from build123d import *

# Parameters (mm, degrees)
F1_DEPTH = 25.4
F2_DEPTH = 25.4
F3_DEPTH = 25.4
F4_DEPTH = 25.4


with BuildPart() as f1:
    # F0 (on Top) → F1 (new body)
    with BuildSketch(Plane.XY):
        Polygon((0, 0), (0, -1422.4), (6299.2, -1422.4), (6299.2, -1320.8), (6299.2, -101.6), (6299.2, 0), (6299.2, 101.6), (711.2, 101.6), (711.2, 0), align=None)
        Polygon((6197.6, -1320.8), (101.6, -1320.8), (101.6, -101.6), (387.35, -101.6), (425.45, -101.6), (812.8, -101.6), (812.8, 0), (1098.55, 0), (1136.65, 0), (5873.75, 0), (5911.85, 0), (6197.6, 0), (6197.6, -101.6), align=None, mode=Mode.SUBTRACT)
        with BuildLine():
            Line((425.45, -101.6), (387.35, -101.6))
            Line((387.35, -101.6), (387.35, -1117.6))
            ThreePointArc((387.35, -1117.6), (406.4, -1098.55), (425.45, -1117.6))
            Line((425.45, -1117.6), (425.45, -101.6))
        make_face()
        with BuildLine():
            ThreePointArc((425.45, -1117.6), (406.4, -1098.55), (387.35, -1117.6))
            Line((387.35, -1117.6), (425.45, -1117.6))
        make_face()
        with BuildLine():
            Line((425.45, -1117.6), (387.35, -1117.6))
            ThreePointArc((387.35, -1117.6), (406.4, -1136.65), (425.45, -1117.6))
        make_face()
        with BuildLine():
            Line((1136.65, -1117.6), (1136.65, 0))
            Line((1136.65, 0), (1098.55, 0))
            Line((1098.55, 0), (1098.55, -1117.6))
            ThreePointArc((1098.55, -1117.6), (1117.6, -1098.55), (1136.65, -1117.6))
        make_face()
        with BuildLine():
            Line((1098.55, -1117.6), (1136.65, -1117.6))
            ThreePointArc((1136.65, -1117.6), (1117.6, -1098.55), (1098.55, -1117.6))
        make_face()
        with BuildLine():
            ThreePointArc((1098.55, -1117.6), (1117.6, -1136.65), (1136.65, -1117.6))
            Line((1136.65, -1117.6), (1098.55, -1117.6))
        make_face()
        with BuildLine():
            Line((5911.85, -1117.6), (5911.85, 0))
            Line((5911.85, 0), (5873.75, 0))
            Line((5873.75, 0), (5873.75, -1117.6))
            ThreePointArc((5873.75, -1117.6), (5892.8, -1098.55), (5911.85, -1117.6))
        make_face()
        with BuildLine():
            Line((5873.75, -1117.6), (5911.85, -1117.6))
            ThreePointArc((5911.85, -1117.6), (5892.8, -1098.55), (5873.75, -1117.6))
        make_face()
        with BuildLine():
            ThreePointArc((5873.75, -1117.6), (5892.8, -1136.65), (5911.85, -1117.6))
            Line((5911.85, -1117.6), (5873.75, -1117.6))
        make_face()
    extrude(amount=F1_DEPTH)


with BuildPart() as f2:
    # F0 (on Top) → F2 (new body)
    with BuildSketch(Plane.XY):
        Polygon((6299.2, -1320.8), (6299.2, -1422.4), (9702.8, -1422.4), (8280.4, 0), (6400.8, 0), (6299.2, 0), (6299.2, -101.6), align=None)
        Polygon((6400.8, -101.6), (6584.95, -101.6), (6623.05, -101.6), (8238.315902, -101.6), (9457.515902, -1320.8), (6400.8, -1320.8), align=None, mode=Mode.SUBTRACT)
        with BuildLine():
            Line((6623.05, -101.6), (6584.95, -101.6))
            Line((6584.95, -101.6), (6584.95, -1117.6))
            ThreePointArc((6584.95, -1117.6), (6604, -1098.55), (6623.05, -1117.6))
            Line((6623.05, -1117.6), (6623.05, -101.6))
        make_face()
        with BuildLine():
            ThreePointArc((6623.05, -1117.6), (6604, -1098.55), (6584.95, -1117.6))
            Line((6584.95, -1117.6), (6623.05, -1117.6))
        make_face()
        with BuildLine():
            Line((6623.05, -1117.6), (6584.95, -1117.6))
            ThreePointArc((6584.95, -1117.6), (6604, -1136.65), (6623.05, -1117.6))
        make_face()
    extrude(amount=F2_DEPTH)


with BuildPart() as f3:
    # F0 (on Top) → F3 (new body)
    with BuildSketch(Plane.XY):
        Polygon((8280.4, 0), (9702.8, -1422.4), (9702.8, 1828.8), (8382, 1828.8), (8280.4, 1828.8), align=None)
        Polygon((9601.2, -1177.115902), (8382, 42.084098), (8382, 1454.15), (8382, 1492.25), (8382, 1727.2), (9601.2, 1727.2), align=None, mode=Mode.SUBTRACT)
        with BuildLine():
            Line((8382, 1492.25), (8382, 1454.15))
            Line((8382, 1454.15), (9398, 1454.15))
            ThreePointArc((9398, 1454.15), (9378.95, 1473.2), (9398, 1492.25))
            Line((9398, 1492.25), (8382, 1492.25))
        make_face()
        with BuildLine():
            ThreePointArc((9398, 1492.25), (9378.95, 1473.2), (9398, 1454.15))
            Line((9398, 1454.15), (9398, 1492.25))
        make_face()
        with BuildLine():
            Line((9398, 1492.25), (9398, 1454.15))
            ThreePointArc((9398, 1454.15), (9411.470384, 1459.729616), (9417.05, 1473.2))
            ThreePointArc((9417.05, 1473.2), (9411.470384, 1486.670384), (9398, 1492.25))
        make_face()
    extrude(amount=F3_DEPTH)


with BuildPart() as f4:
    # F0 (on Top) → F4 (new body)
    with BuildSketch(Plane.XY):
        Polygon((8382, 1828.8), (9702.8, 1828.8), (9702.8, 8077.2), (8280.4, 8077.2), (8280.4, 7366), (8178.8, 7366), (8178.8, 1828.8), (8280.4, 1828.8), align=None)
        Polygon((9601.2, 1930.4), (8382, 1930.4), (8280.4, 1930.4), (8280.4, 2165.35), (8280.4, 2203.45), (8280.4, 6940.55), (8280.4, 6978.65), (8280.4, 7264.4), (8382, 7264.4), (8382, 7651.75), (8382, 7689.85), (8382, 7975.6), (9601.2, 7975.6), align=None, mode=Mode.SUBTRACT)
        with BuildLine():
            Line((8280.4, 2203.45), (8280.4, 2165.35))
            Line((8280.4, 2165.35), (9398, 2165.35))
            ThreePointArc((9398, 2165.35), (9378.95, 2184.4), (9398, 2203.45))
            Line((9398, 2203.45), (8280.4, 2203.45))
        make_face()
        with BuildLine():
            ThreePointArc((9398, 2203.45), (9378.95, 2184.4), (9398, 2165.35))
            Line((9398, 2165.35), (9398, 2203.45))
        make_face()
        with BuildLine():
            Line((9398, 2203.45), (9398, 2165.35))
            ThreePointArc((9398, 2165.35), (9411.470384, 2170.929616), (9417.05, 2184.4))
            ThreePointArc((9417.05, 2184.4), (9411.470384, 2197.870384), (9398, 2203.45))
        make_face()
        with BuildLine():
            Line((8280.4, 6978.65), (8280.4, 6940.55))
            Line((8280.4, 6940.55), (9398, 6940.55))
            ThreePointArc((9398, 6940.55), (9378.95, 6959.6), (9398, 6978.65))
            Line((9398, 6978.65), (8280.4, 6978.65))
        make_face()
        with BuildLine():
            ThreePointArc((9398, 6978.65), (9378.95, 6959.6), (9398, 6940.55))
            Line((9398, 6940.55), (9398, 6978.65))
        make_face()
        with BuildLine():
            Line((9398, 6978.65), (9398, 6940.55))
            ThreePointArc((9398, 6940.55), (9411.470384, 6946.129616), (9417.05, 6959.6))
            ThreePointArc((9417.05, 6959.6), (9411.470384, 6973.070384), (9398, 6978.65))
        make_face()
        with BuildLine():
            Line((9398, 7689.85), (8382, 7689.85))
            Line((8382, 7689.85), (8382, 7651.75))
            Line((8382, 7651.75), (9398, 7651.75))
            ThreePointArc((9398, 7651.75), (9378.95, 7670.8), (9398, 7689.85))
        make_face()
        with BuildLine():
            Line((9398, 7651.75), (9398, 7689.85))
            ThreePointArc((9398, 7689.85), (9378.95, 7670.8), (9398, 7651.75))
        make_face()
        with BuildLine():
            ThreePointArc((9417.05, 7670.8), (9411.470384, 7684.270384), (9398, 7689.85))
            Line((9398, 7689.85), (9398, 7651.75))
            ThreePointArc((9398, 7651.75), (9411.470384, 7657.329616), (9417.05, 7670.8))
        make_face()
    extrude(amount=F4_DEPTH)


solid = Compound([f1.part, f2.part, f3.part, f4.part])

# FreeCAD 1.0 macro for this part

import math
import FreeCAD as App
import Part
import Sketcher
from FreeCAD import Vector
Q = App.Units.Quantity

doc = App.newDocument("Part")
params = doc.addObject("Spreadsheet::Sheet", "Params")
for row, (alias, value) in enumerate([
    ("sketch1_width", "248 in"),
    ("sketch1_width2", "220 in"),
    ("sketch1_width3", "240 in"),
    ("sketch1_height", "56 in"),
    ("sketch1_height2", "60 in"),
    ("pad1_length", "1 in"),
    ("sketch2_width", "134 in"),
    ("sketch2_width2", "78 in"),
    ("sketch2_height", "56 in"),
    ("sketch2_height2", "48 in"),
    ("sketch2_height3", "40 in"),
    ("pad2_length", "1 in"),
    ("sketch3_width", "56 in"),
    ("sketch3_width2", "40 in"),
    ("sketch3_width3", "48 in"),
    ("sketch3_height", "128 in"),
    ("sketch3_height2", "72 in"),
    ("pad3_length", "1 in"),
    ("sketch4_width", "56 in"),
    ("sketch4_width2", "4 in"),
    ("sketch4_width3", "52 in"),
    ("sketch4_width4", "44 in"),
    ("sketch4_height", "246 in"),
    ("pad4_length", "1 in"),
], start=1):
    params.set(f"A{row}", alias)
    params.set(f"B{row}", "=" + value)
    params.setAlias(f"B{row}", alias)

body = doc.addObject("PartDesign::Body", "Body")

sketch1 = body.newObject("Sketcher::SketchObject", "Sketch")
sketch1.AttachmentSupport = (doc.getObject("XY_Plane"), [""])
sketch1.MapMode = "FlatFace"
sketch1.addGeometry(Part.LineSegment(Vector(0, 0, 0), Vector(0, -1422, 0)), False)
sketch1.addGeometry(Part.LineSegment(Vector(0, -1422, 0), Vector(6299, -1422, 0)), False)
sketch1.addGeometry(Part.LineSegment(Vector(6299, -1422, 0), Vector(6299, 102, 0)), False)
sketch1.addGeometry(Part.LineSegment(Vector(6299, 102, 0), Vector(711, 102, 0)), False)
sketch1.addGeometry(Part.LineSegment(Vector(711, 102, 0), Vector(711, 0, 0)), False)
sketch1.addGeometry(Part.LineSegment(Vector(711, 0, 0), Vector(0, 0, 0)), False)
sketch1.addGeometry(Part.LineSegment(Vector(6198, 0, 0), Vector(6198, -1321, 0)), False)
sketch1.addGeometry(Part.LineSegment(Vector(6198, -1321, 0), Vector(102, -1321, 0)), False)
sketch1.addGeometry(Part.LineSegment(Vector(102, -1321, 0), Vector(102, -102, 0)), False)
sketch1.addGeometry(Part.LineSegment(Vector(102, -102, 0), Vector(387, -102, 0)), False)
sketch1.addGeometry(Part.LineSegment(Vector(387, -102, 0), Vector(387, -1118, 0)), False)
sketch1.addGeometry(Part.ArcOfCircle(Part.Circle(Vector(406, -1118, 0), Vector(0, 0, 1), 19), math.radians(180), math.radians(360)), False)
sketch1.addGeometry(Part.LineSegment(Vector(425, -1118, 0), Vector(425, -102, 0)), False)
sketch1.addGeometry(Part.LineSegment(Vector(425, -102, 0), Vector(813, -102, 0)), False)
sketch1.addGeometry(Part.LineSegment(Vector(813, -102, 0), Vector(813, 0, 0)), False)
sketch1.addGeometry(Part.LineSegment(Vector(813, 0, 0), Vector(1099, 0, 0)), False)
sketch1.addGeometry(Part.LineSegment(Vector(1099, 0, 0), Vector(1099, -1118, 0)), False)
sketch1.addGeometry(Part.ArcOfCircle(Part.Circle(Vector(1118, -1118, 0), Vector(0, 0, 1), 19), math.radians(180), math.radians(360)), False)
sketch1.addGeometry(Part.LineSegment(Vector(1137, -1118, 0), Vector(1137, 0, 0)), False)
sketch1.addGeometry(Part.LineSegment(Vector(1137, 0, 0), Vector(5874, 0, 0)), False)
sketch1.addGeometry(Part.LineSegment(Vector(5874, 0, 0), Vector(5874, -1118, 0)), False)
sketch1.addGeometry(Part.ArcOfCircle(Part.Circle(Vector(5893, -1118, 0), Vector(0, 0, 1), 19), math.radians(180), math.radians(360)), False)
sketch1.addGeometry(Part.LineSegment(Vector(5912, -1118, 0), Vector(5912, 0, 0)), False)
sketch1.addGeometry(Part.LineSegment(Vector(5912, 0, 0), Vector(6198, 0, 0)), False)
sketch1.addConstraint(Sketcher.Constraint("Coincident", 0, 2, 1, 1))
sketch1.addConstraint(Sketcher.Constraint("Coincident", 1, 2, 2, 1))
sketch1.addConstraint(Sketcher.Constraint("Coincident", 2, 2, 3, 1))
sketch1.addConstraint(Sketcher.Constraint("Coincident", 3, 2, 4, 1))
sketch1.addConstraint(Sketcher.Constraint("Coincident", 4, 2, 5, 1))
sketch1.addConstraint(Sketcher.Constraint("Coincident", 5, 2, 0, 1))
sketch1.addConstraint(Sketcher.Constraint("Coincident", 6, 2, 7, 1))
sketch1.addConstraint(Sketcher.Constraint("Coincident", 7, 2, 8, 1))
sketch1.addConstraint(Sketcher.Constraint("Coincident", 8, 2, 9, 1))
sketch1.addConstraint(Sketcher.Constraint("Coincident", 9, 2, 10, 1))
sketch1.addConstraint(Sketcher.Constraint("Tangent", 10, 2, 11, 1))
sketch1.addConstraint(Sketcher.Constraint("Tangent", 11, 2, 12, 1))
sketch1.addConstraint(Sketcher.Constraint("Coincident", 12, 2, 13, 1))
sketch1.addConstraint(Sketcher.Constraint("Coincident", 13, 2, 14, 1))
sketch1.addConstraint(Sketcher.Constraint("Coincident", 14, 2, 15, 1))
sketch1.addConstraint(Sketcher.Constraint("Coincident", 15, 2, 16, 1))
sketch1.addConstraint(Sketcher.Constraint("Tangent", 16, 2, 17, 1))
sketch1.addConstraint(Sketcher.Constraint("Tangent", 17, 2, 18, 1))
sketch1.addConstraint(Sketcher.Constraint("Coincident", 18, 2, 19, 1))
sketch1.addConstraint(Sketcher.Constraint("Coincident", 19, 2, 20, 1))
sketch1.addConstraint(Sketcher.Constraint("Tangent", 20, 2, 21, 1))
sketch1.addConstraint(Sketcher.Constraint("Tangent", 21, 2, 22, 1))
sketch1.addConstraint(Sketcher.Constraint("Coincident", 22, 2, 23, 1))
sketch1.addConstraint(Sketcher.Constraint("Coincident", 23, 2, 6, 1))
sketch1.addConstraint(Sketcher.Constraint("Vertical", 0))
sketch1.addConstraint(Sketcher.Constraint("Horizontal", 1))
sketch1.addConstraint(Sketcher.Constraint("Vertical", 2))
sketch1.addConstraint(Sketcher.Constraint("Horizontal", 3))
sketch1.addConstraint(Sketcher.Constraint("Vertical", 4))
sketch1.addConstraint(Sketcher.Constraint("Horizontal", 5))
sketch1.addConstraint(Sketcher.Constraint("Vertical", 6))
sketch1.addConstraint(Sketcher.Constraint("Horizontal", 7))
sketch1.addConstraint(Sketcher.Constraint("Vertical", 8))
sketch1.addConstraint(Sketcher.Constraint("Horizontal", 9))
sketch1.addConstraint(Sketcher.Constraint("Vertical", 10))
sketch1.addConstraint(Sketcher.Constraint("Vertical", 12))
sketch1.addConstraint(Sketcher.Constraint("Horizontal", 13))
sketch1.addConstraint(Sketcher.Constraint("Vertical", 14))
sketch1.addConstraint(Sketcher.Constraint("Horizontal", 15))
sketch1.addConstraint(Sketcher.Constraint("Vertical", 16))
sketch1.addConstraint(Sketcher.Constraint("Vertical", 18))
sketch1.addConstraint(Sketcher.Constraint("Horizontal", 19))
sketch1.addConstraint(Sketcher.Constraint("Vertical", 20))
sketch1.addConstraint(Sketcher.Constraint("Vertical", 22))
sketch1.addConstraint(Sketcher.Constraint("Horizontal", 23))
sketch1.addConstraint(Sketcher.Constraint("Coincident", 5, 2, -1, 1))
sketch1.addConstraint(Sketcher.Constraint("Equal", 11, 17))
sketch1.addConstraint(Sketcher.Constraint("Equal", 17, 21))
sketch1.addConstraint(Sketcher.Constraint("PointOnObject", 14, 2, -1))
sketch1.addConstraint(Sketcher.Constraint("PointOnObject", 18, 2, -1))
sketch1.addConstraint(Sketcher.Constraint("PointOnObject", 22, 2, -1))
sketch1.addConstraint(Sketcher.Constraint("Horizontal", 11, 3, 17, 3))
sketch1.addConstraint(Sketcher.Constraint("Horizontal", 17, 3, 21, 3))
sketch1.addConstraint(Sketcher.Constraint("Horizontal", 9, 2, 12, 2))
sketch1.addConstraint(Sketcher.Constraint("Equal", 9, 15))
sketch1.addConstraint(Sketcher.Constraint("Equal", 15, 23))
sketch1.addConstraint(Sketcher.Constraint("Equal", 4, 14))
sketch1.addConstraint(Sketcher.Constraint("DistanceX", 1, 1, 1, 2, Q("248 in")))
sketch1.addConstraint(Sketcher.Constraint("DistanceX", 3, 2, 3, 1, Q("220 in")))
sketch1.addConstraint(Sketcher.Constraint("DistanceX", 7, 2, 7, 1, Q("240 in")))
sketch1.addConstraint(Sketcher.Constraint("DistanceY", 0, 2, 0, 1, Q("56 in")))
sketch1.addConstraint(Sketcher.Constraint("DistanceY", 2, 1, 2, 2, Q("60 in")))
sketch1.addConstraint(Sketcher.Constraint("DistanceY", 6, 2, 6, 1, Q("52 in")))
sketch1.addConstraint(Sketcher.Constraint("DistanceY", 10, 2, 10, 1, Q("40 in")))
sketch1.addConstraint(Sketcher.Constraint("Radius", 11, Q("0.75 in")))
sketch1.addConstraint(Sketcher.Constraint("DistanceX", 19, 1, 19, 2, Q("186.5 in")))
sketch1.addConstraint(Sketcher.Constraint("DistanceX", -1, 1, 11, 3, Q("16 in")))
sketch1.addConstraint(Sketcher.Constraint("DistanceX", -1, 1, 17, 3, Q("44 in")))
sketch1.setExpression("Constraints[57]", "Params.sketch1_width")
sketch1.setExpression("Constraints[58]", "Params.sketch1_width2")
sketch1.setExpression("Constraints[59]", "Params.sketch1_width3")
sketch1.setExpression("Constraints[60]", "Params.sketch1_height")
sketch1.setExpression("Constraints[61]", "Params.sketch1_height2")
pad1 = body.newObject("PartDesign::Pad", "Pad")
pad1.Profile = sketch1
pad1.setExpression("Length", "Params.pad1_length")
body2 = doc.addObject("PartDesign::Body", "Body001")

sketch2 = body2.newObject("Sketcher::SketchObject", "Sketch001")
sketch2.AttachmentSupport = (doc.getObject("XY_Plane001"), [""])
sketch2.MapMode = "FlatFace"
sketch2.addGeometry(Part.LineSegment(Vector(6299, -1422, 0), Vector(9703, -1422, 0)), False)
sketch2.addGeometry(Part.LineSegment(Vector(9703, -1422, 0), Vector(8280, 0, 0)), False)
sketch2.addGeometry(Part.LineSegment(Vector(8280, 0, 0), Vector(6299, 0, 0)), False)
sketch2.addGeometry(Part.LineSegment(Vector(6299, 0, 0), Vector(6299, -1422, 0)), False)
sketch2.addGeometry(Part.LineSegment(Vector(6401, -1321, 0), Vector(6401, -102, 0)), False)
sketch2.addGeometry(Part.LineSegment(Vector(6401, -102, 0), Vector(6585, -102, 0)), False)
sketch2.addGeometry(Part.LineSegment(Vector(6585, -102, 0), Vector(6585, -1118, 0)), False)
sketch2.addGeometry(Part.ArcOfCircle(Part.Circle(Vector(6604, -1118, 0), Vector(0, 0, 1), 19), math.radians(180), math.radians(360)), False)
sketch2.addGeometry(Part.LineSegment(Vector(6623, -1118, 0), Vector(6623, -102, 0)), False)
sketch2.addGeometry(Part.LineSegment(Vector(6623, -102, 0), Vector(8238, -102, 0)), False)
sketch2.addGeometry(Part.LineSegment(Vector(8238, -102, 0), Vector(9458, -1321, 0)), False)
sketch2.addGeometry(Part.LineSegment(Vector(9458, -1321, 0), Vector(6401, -1321, 0)), False)
sketch2.addConstraint(Sketcher.Constraint("Coincident", 0, 2, 1, 1))
sketch2.addConstraint(Sketcher.Constraint("Coincident", 1, 2, 2, 1))
sketch2.addConstraint(Sketcher.Constraint("Coincident", 2, 2, 3, 1))
sketch2.addConstraint(Sketcher.Constraint("Coincident", 3, 2, 0, 1))
sketch2.addConstraint(Sketcher.Constraint("Coincident", 4, 2, 5, 1))
sketch2.addConstraint(Sketcher.Constraint("Coincident", 5, 2, 6, 1))
sketch2.addConstraint(Sketcher.Constraint("Tangent", 6, 2, 7, 1))
sketch2.addConstraint(Sketcher.Constraint("Tangent", 7, 2, 8, 1))
sketch2.addConstraint(Sketcher.Constraint("Coincident", 8, 2, 9, 1))
sketch2.addConstraint(Sketcher.Constraint("Coincident", 9, 2, 10, 1))
sketch2.addConstraint(Sketcher.Constraint("Coincident", 10, 2, 11, 1))
sketch2.addConstraint(Sketcher.Constraint("Coincident", 11, 2, 4, 1))
sketch2.addConstraint(Sketcher.Constraint("Horizontal", 0))
sketch2.addConstraint(Sketcher.Constraint("Horizontal", 2))
sketch2.addConstraint(Sketcher.Constraint("Vertical", 3))
sketch2.addConstraint(Sketcher.Constraint("Vertical", 4))
sketch2.addConstraint(Sketcher.Constraint("Horizontal", 5))
sketch2.addConstraint(Sketcher.Constraint("Vertical", 6))
sketch2.addConstraint(Sketcher.Constraint("Vertical", 8))
sketch2.addConstraint(Sketcher.Constraint("Horizontal", 9))
sketch2.addConstraint(Sketcher.Constraint("Horizontal", 11))
sketch2.addConstraint(Sketcher.Constraint("PointOnObject", 1, 2, -1))
sketch2.addConstraint(Sketcher.Constraint("Parallel", 1, 10))
sketch2.addConstraint(Sketcher.Constraint("Horizontal", 5, 2, 8, 2))
sketch2.addConstraint(Sketcher.Constraint("DistanceX", 0, 1, 0, 2, Q("134 in")))
sketch2.addConstraint(Sketcher.Constraint("DistanceX", 2, 2, 2, 1, Q("78 in")))
sketch2.addConstraint(Sketcher.Constraint("DistanceY", 3, 2, 3, 1, Q("56 in")))
sketch2.addConstraint(Sketcher.Constraint("DistanceY", 4, 1, 4, 2, Q("48 in")))
sketch2.addConstraint(Sketcher.Constraint("DistanceY", 6, 2, 6, 1, Q("40 in")))
sketch2.addConstraint(Sketcher.Constraint("Radius", 7, Q("0.75 in")))
sketch2.addConstraint(Sketcher.Constraint("DistanceX", -1, 1, 7, 3, Q("260 in")))
sketch2.addConstraint(Sketcher.Constraint("DistanceY", 7, 3, -1, 1, Q("44 in")))
sketch2.addConstraint(Sketcher.Constraint("DistanceX", -1, 1, 0, 2, Q("382 in")))
sketch2.addConstraint(Sketcher.Constraint("DistanceX", -1, 1, 4, 2, Q("252 in")))
sketch2.addConstraint(Sketcher.Constraint("DistanceX", 9, 1, 9, 2, 1615.265902))
sketch2.setExpression("Constraints[24]", "Params.sketch2_width")
sketch2.setExpression("Constraints[25]", "Params.sketch2_width2")
sketch2.setExpression("Constraints[26]", "Params.sketch2_height")
sketch2.setExpression("Constraints[27]", "Params.sketch2_height2")
sketch2.setExpression("Constraints[28]", "Params.sketch2_height3")
pad2 = body2.newObject("PartDesign::Pad", "Pad001")
pad2.Profile = sketch2
pad2.setExpression("Length", "Params.pad2_length")
body3 = doc.addObject("PartDesign::Body", "Body002")

sketch3 = body3.newObject("Sketcher::SketchObject", "Sketch002")
sketch3.AttachmentSupport = (doc.getObject("XY_Plane002"), [""])
sketch3.MapMode = "FlatFace"
sketch3.addGeometry(Part.LineSegment(Vector(8280, 0, 0), Vector(9703, -1422, 0)), False)
sketch3.addGeometry(Part.LineSegment(Vector(9703, -1422, 0), Vector(9703, 1829, 0)), False)
sketch3.addGeometry(Part.LineSegment(Vector(9703, 1829, 0), Vector(8280, 1829, 0)), False)
sketch3.addGeometry(Part.LineSegment(Vector(8280, 1829, 0), Vector(8280, 0, 0)), False)
sketch3.addGeometry(Part.LineSegment(Vector(9601, 1727, 0), Vector(9601, -1177, 0)), False)
sketch3.addGeometry(Part.LineSegment(Vector(9601, -1177, 0), Vector(8382, 42, 0)), False)
sketch3.addGeometry(Part.LineSegment(Vector(8382, 42, 0), Vector(8382, 1454, 0)), False)
sketch3.addGeometry(Part.LineSegment(Vector(8382, 1454, 0), Vector(9398, 1454, 0)), False)
sketch3.addGeometry(Part.ArcOfCircle(Part.Circle(Vector(9398, 1473, 0), Vector(0, 0, 1), 19), math.radians(-90), math.radians(0)), False)
sketch3.addGeometry(Part.ArcOfCircle(Part.Circle(Vector(9398, 1473, 0), Vector(0, 0, 1), 19), math.radians(0), math.radians(90)), False)
sketch3.addGeometry(Part.LineSegment(Vector(9398, 1492, 0), Vector(8382, 1492, 0)), False)
sketch3.addGeometry(Part.LineSegment(Vector(8382, 1492, 0), Vector(8382, 1727, 0)), False)
sketch3.addGeometry(Part.LineSegment(Vector(8382, 1727, 0), Vector(9601, 1727, 0)), False)
sketch3.addConstraint(Sketcher.Constraint("Coincident", 0, 2, 1, 1))
sketch3.addConstraint(Sketcher.Constraint("Coincident", 1, 2, 2, 1))
sketch3.addConstraint(Sketcher.Constraint("Coincident", 2, 2, 3, 1))
sketch3.addConstraint(Sketcher.Constraint("Coincident", 3, 2, 0, 1))
sketch3.addConstraint(Sketcher.Constraint("Coincident", 4, 2, 5, 1))
sketch3.addConstraint(Sketcher.Constraint("Coincident", 5, 2, 6, 1))
sketch3.addConstraint(Sketcher.Constraint("Coincident", 6, 2, 7, 1))
sketch3.addConstraint(Sketcher.Constraint("Tangent", 7, 2, 8, 1))
sketch3.addConstraint(Sketcher.Constraint("Tangent", 8, 2, 9, 1))
sketch3.addConstraint(Sketcher.Constraint("Tangent", 9, 2, 10, 1))
sketch3.addConstraint(Sketcher.Constraint("Coincident", 10, 2, 11, 1))
sketch3.addConstraint(Sketcher.Constraint("Coincident", 11, 2, 12, 1))
sketch3.addConstraint(Sketcher.Constraint("Coincident", 12, 2, 4, 1))
sketch3.addConstraint(Sketcher.Constraint("Vertical", 1))
sketch3.addConstraint(Sketcher.Constraint("Horizontal", 2))
sketch3.addConstraint(Sketcher.Constraint("Vertical", 3))
sketch3.addConstraint(Sketcher.Constraint("Vertical", 4))
sketch3.addConstraint(Sketcher.Constraint("Vertical", 6))
sketch3.addConstraint(Sketcher.Constraint("Horizontal", 7))
sketch3.addConstraint(Sketcher.Constraint("Horizontal", 10))
sketch3.addConstraint(Sketcher.Constraint("Vertical", 11))
sketch3.addConstraint(Sketcher.Constraint("Horizontal", 12))
sketch3.addConstraint(Sketcher.Constraint("Equal", 8, 9))
sketch3.addConstraint(Sketcher.Constraint("PointOnObject", 3, 2, -1))
sketch3.addConstraint(Sketcher.Constraint("Parallel", 0, 5))
sketch3.addConstraint(Sketcher.Constraint("Horizontal", 9, 3, 8, 2))
sketch3.addConstraint(Sketcher.Constraint("Vertical", 6, 2, 10, 2))
sketch3.addConstraint(Sketcher.Constraint("DistanceX", 2, 2, 2, 1, Q("56 in")))
sketch3.addConstraint(Sketcher.Constraint("DistanceX", 7, 1, 7, 2, Q("40 in")))
sketch3.addConstraint(Sketcher.Constraint("DistanceX", 12, 1, 12, 2, Q("48 in")))
sketch3.addConstraint(Sketcher.Constraint("DistanceY", 1, 1, 1, 2, Q("128 in")))
sketch3.addConstraint(Sketcher.Constraint("DistanceY", 3, 2, 3, 1, Q("72 in")))
sketch3.addConstraint(Sketcher.Constraint("Radius", 8, Q("0.75 in")))
sketch3.addConstraint(Sketcher.Constraint("DistanceX", -1, 1, 8, 3, Q("370 in")))
sketch3.addConstraint(Sketcher.Constraint("DistanceY", -1, 1, 8, 3, Q("58 in")))
sketch3.addConstraint(Sketcher.Constraint("DistanceX", -1, 1, 0, 2, Q("382 in")))
sketch3.addConstraint(Sketcher.Constraint("DistanceY", -1, 1, 11, 2, Q("68 in")))
sketch3.addConstraint(Sketcher.Constraint("DistanceY", 6, 1, 6, 2, 1412.065902))
sketch3.setExpression("Constraints[27]", "Params.sketch3_width")
sketch3.setExpression("Constraints[28]", "Params.sketch3_width2")
sketch3.setExpression("Constraints[29]", "Params.sketch3_width3")
sketch3.setExpression("Constraints[30]", "Params.sketch3_height")
sketch3.setExpression("Constraints[31]", "Params.sketch3_height2")
pad3 = body3.newObject("PartDesign::Pad", "Pad002")
pad3.Profile = sketch3
pad3.setExpression("Length", "Params.pad3_length")
body4 = doc.addObject("PartDesign::Body", "Body003")

sketch4 = body4.newObject("Sketcher::SketchObject", "Sketch003")
sketch4.AttachmentSupport = (doc.getObject("XY_Plane003"), [""])
sketch4.MapMode = "FlatFace"
sketch4.addGeometry(Part.LineSegment(Vector(9703, 1829, 0), Vector(9703, 8077, 0)), False)
sketch4.addGeometry(Part.LineSegment(Vector(9703, 8077, 0), Vector(8280, 8077, 0)), False)
sketch4.addGeometry(Part.LineSegment(Vector(8280, 8077, 0), Vector(8280, 7366, 0)), False)
sketch4.addGeometry(Part.LineSegment(Vector(8280, 7366, 0), Vector(8179, 7366, 0)), False)
sketch4.addGeometry(Part.LineSegment(Vector(8179, 7366, 0), Vector(8179, 1829, 0)), False)
sketch4.addGeometry(Part.LineSegment(Vector(8179, 1829, 0), Vector(9703, 1829, 0)), False)
sketch4.addGeometry(Part.LineSegment(Vector(9601, 7976, 0), Vector(9601, 1930, 0)), False)
sketch4.addGeometry(Part.LineSegment(Vector(9601, 1930, 0), Vector(8280, 1930, 0)), False)
sketch4.addGeometry(Part.LineSegment(Vector(8280, 1930, 0), Vector(8280, 2165, 0)), False)
sketch4.addGeometry(Part.LineSegment(Vector(8280, 2165, 0), Vector(9398, 2165, 0)), False)
sketch4.addGeometry(Part.ArcOfCircle(Part.Circle(Vector(9398, 2184, 0), Vector(0, 0, 1), 19), math.radians(-90), math.radians(0)), False)
sketch4.addGeometry(Part.ArcOfCircle(Part.Circle(Vector(9398, 2184, 0), Vector(0, 0, 1), 19), math.radians(0), math.radians(90)), False)
sketch4.addGeometry(Part.LineSegment(Vector(9398, 2203, 0), Vector(8280, 2203, 0)), False)
sketch4.addGeometry(Part.LineSegment(Vector(8280, 2203, 0), Vector(8280, 6941, 0)), False)
sketch4.addGeometry(Part.LineSegment(Vector(8280, 6941, 0), Vector(9398, 6941, 0)), False)
sketch4.addGeometry(Part.ArcOfCircle(Part.Circle(Vector(9398, 6960, 0), Vector(0, 0, 1), 19), math.radians(-90), math.radians(0)), False)
sketch4.addGeometry(Part.ArcOfCircle(Part.Circle(Vector(9398, 6960, 0), Vector(0, 0, 1), 19), math.radians(0), math.radians(90)), False)
sketch4.addGeometry(Part.LineSegment(Vector(9398, 6979, 0), Vector(8280, 6979, 0)), False)
sketch4.addGeometry(Part.LineSegment(Vector(8280, 6979, 0), Vector(8280, 7264, 0)), False)
sketch4.addGeometry(Part.LineSegment(Vector(8280, 7264, 0), Vector(8382, 7264, 0)), False)
sketch4.addGeometry(Part.LineSegment(Vector(8382, 7264, 0), Vector(8382, 7652, 0)), False)
sketch4.addGeometry(Part.LineSegment(Vector(8382, 7652, 0), Vector(9398, 7652, 0)), False)
sketch4.addGeometry(Part.ArcOfCircle(Part.Circle(Vector(9398, 7671, 0), Vector(0, 0, 1), 19), math.radians(-90), math.radians(0)), False)
sketch4.addGeometry(Part.ArcOfCircle(Part.Circle(Vector(9398, 7671, 0), Vector(0, 0, 1), 19), math.radians(0), math.radians(90)), False)
sketch4.addGeometry(Part.LineSegment(Vector(9398, 7690, 0), Vector(8382, 7690, 0)), False)
sketch4.addGeometry(Part.LineSegment(Vector(8382, 7690, 0), Vector(8382, 7976, 0)), False)
sketch4.addGeometry(Part.LineSegment(Vector(8382, 7976, 0), Vector(9601, 7976, 0)), False)
sketch4.addConstraint(Sketcher.Constraint("Coincident", 0, 2, 1, 1))
sketch4.addConstraint(Sketcher.Constraint("Coincident", 1, 2, 2, 1))
sketch4.addConstraint(Sketcher.Constraint("Coincident", 2, 2, 3, 1))
sketch4.addConstraint(Sketcher.Constraint("Coincident", 3, 2, 4, 1))
sketch4.addConstraint(Sketcher.Constraint("Coincident", 4, 2, 5, 1))
sketch4.addConstraint(Sketcher.Constraint("Coincident", 5, 2, 0, 1))
sketch4.addConstraint(Sketcher.Constraint("Coincident", 6, 2, 7, 1))
sketch4.addConstraint(Sketcher.Constraint("Coincident", 7, 2, 8, 1))
sketch4.addConstraint(Sketcher.Constraint("Coincident", 8, 2, 9, 1))
sketch4.addConstraint(Sketcher.Constraint("Tangent", 9, 2, 10, 1))
sketch4.addConstraint(Sketcher.Constraint("Tangent", 10, 2, 11, 1))
sketch4.addConstraint(Sketcher.Constraint("Tangent", 11, 2, 12, 1))
sketch4.addConstraint(Sketcher.Constraint("Coincident", 12, 2, 13, 1))
sketch4.addConstraint(Sketcher.Constraint("Coincident", 13, 2, 14, 1))
sketch4.addConstraint(Sketcher.Constraint("Tangent", 14, 2, 15, 1))
sketch4.addConstraint(Sketcher.Constraint("Tangent", 15, 2, 16, 1))
sketch4.addConstraint(Sketcher.Constraint("Tangent", 16, 2, 17, 1))
sketch4.addConstraint(Sketcher.Constraint("Coincident", 17, 2, 18, 1))
sketch4.addConstraint(Sketcher.Constraint("Coincident", 18, 2, 19, 1))
sketch4.addConstraint(Sketcher.Constraint("Coincident", 19, 2, 20, 1))
sketch4.addConstraint(Sketcher.Constraint("Coincident", 20, 2, 21, 1))
sketch4.addConstraint(Sketcher.Constraint("Tangent", 21, 2, 22, 1))
sketch4.addConstraint(Sketcher.Constraint("Tangent", 22, 2, 23, 1))
sketch4.addConstraint(Sketcher.Constraint("Tangent", 23, 2, 24, 1))
sketch4.addConstraint(Sketcher.Constraint("Coincident", 24, 2, 25, 1))
sketch4.addConstraint(Sketcher.Constraint("Coincident", 25, 2, 26, 1))
sketch4.addConstraint(Sketcher.Constraint("Coincident", 26, 2, 6, 1))
sketch4.addConstraint(Sketcher.Constraint("Vertical", 0))
sketch4.addConstraint(Sketcher.Constraint("Horizontal", 1))
sketch4.addConstraint(Sketcher.Constraint("Vertical", 2))
sketch4.addConstraint(Sketcher.Constraint("Horizontal", 3))
sketch4.addConstraint(Sketcher.Constraint("Vertical", 4))
sketch4.addConstraint(Sketcher.Constraint("Horizontal", 5))
sketch4.addConstraint(Sketcher.Constraint("Vertical", 6))
sketch4.addConstraint(Sketcher.Constraint("Horizontal", 7))
sketch4.addConstraint(Sketcher.Constraint("Vertical", 8))
sketch4.addConstraint(Sketcher.Constraint("Horizontal", 9))
sketch4.addConstraint(Sketcher.Constraint("Horizontal", 12))
sketch4.addConstraint(Sketcher.Constraint("Vertical", 13))
sketch4.addConstraint(Sketcher.Constraint("Horizontal", 14))
sketch4.addConstraint(Sketcher.Constraint("Horizontal", 17))
sketch4.addConstraint(Sketcher.Constraint("Vertical", 18))
sketch4.addConstraint(Sketcher.Constraint("Horizontal", 19))
sketch4.addConstraint(Sketcher.Constraint("Vertical", 20))
sketch4.addConstraint(Sketcher.Constraint("Horizontal", 21))
sketch4.addConstraint(Sketcher.Constraint("Horizontal", 24))
sketch4.addConstraint(Sketcher.Constraint("Vertical", 25))
sketch4.addConstraint(Sketcher.Constraint("Horizontal", 26))
sketch4.addConstraint(Sketcher.Constraint("Equal", 10, 11))
sketch4.addConstraint(Sketcher.Constraint("Equal", 11, 15))
sketch4.addConstraint(Sketcher.Constraint("Equal", 15, 16))
sketch4.addConstraint(Sketcher.Constraint("Equal", 16, 22))
sketch4.addConstraint(Sketcher.Constraint("Equal", 22, 23))
sketch4.addConstraint(Sketcher.Constraint("Horizontal", 11, 3, 10, 2))
sketch4.addConstraint(Sketcher.Constraint("Horizontal", 16, 3, 15, 2))
sketch4.addConstraint(Sketcher.Constraint("Horizontal", 23, 3, 22, 2))
sketch4.addConstraint(Sketcher.Constraint("Vertical", 11, 3, 15, 3))
sketch4.addConstraint(Sketcher.Constraint("Vertical", 16, 3, 22, 3))
sketch4.addConstraint(Sketcher.Constraint("Vertical", 2, 2, 7, 2))
sketch4.addConstraint(Sketcher.Constraint("Vertical", 8, 2, 12, 2))
sketch4.addConstraint(Sketcher.Constraint("Vertical", 13, 2, 17, 2))
sketch4.addConstraint(Sketcher.Constraint("Vertical", 20, 2, 24, 2))
sketch4.addConstraint(Sketcher.Constraint("Equal", 3, 19))
sketch4.addConstraint(Sketcher.Constraint("Equal", 18, 25))
sketch4.addConstraint(Sketcher.Constraint("DistanceX", 1, 2, 1, 1, Q("56 in")))
sketch4.addConstraint(Sketcher.Constraint("DistanceX", 3, 2, 3, 1, Q("4 in")))
sketch4.addConstraint(Sketcher.Constraint("DistanceX", 7, 2, 7, 1, Q("52 in")))
sketch4.addConstraint(Sketcher.Constraint("DistanceX", 9, 1, 9, 2, Q("44 in")))
sketch4.addConstraint(Sketcher.Constraint("DistanceY", 0, 1, 0, 2, Q("246 in")))
sketch4.addConstraint(Sketcher.Constraint("DistanceY", 2, 2, 2, 1, Q("28 in")))
sketch4.addConstraint(Sketcher.Constraint("DistanceY", 6, 2, 6, 1, Q("238 in")))
sketch4.addConstraint(Sketcher.Constraint("Radius", 10, Q("0.75 in")))
sketch4.addConstraint(Sketcher.Constraint("DistanceY", 13, 1, 13, 2, Q("186.5 in")))
sketch4.addConstraint(Sketcher.Constraint("DistanceX", -1, 1, 10, 3, Q("370 in")))
sketch4.addConstraint(Sketcher.Constraint("DistanceY", -1, 1, 10, 3, Q("86 in")))
sketch4.addConstraint(Sketcher.Constraint("DistanceY", -1, 1, 22, 3, Q("302 in")))
sketch4.addConstraint(Sketcher.Constraint("DistanceY", -1, 1, 0, 2, Q("318 in")))
sketch4.addConstraint(Sketcher.Constraint("DistanceY", -1, 1, 6, 2, Q("76 in")))
sketch4.setExpression("Constraints[64]", "Params.sketch4_width")
sketch4.setExpression("Constraints[65]", "Params.sketch4_width2")
sketch4.setExpression("Constraints[66]", "Params.sketch4_width3")
sketch4.setExpression("Constraints[67]", "Params.sketch4_width4")
sketch4.setExpression("Constraints[68]", "Params.sketch4_height")
pad4 = body4.newObject("PartDesign::Pad", "Pad003")
pad4.Profile = sketch4
pad4.setExpression("Length", "Params.pad4_length")

doc.recompute()
